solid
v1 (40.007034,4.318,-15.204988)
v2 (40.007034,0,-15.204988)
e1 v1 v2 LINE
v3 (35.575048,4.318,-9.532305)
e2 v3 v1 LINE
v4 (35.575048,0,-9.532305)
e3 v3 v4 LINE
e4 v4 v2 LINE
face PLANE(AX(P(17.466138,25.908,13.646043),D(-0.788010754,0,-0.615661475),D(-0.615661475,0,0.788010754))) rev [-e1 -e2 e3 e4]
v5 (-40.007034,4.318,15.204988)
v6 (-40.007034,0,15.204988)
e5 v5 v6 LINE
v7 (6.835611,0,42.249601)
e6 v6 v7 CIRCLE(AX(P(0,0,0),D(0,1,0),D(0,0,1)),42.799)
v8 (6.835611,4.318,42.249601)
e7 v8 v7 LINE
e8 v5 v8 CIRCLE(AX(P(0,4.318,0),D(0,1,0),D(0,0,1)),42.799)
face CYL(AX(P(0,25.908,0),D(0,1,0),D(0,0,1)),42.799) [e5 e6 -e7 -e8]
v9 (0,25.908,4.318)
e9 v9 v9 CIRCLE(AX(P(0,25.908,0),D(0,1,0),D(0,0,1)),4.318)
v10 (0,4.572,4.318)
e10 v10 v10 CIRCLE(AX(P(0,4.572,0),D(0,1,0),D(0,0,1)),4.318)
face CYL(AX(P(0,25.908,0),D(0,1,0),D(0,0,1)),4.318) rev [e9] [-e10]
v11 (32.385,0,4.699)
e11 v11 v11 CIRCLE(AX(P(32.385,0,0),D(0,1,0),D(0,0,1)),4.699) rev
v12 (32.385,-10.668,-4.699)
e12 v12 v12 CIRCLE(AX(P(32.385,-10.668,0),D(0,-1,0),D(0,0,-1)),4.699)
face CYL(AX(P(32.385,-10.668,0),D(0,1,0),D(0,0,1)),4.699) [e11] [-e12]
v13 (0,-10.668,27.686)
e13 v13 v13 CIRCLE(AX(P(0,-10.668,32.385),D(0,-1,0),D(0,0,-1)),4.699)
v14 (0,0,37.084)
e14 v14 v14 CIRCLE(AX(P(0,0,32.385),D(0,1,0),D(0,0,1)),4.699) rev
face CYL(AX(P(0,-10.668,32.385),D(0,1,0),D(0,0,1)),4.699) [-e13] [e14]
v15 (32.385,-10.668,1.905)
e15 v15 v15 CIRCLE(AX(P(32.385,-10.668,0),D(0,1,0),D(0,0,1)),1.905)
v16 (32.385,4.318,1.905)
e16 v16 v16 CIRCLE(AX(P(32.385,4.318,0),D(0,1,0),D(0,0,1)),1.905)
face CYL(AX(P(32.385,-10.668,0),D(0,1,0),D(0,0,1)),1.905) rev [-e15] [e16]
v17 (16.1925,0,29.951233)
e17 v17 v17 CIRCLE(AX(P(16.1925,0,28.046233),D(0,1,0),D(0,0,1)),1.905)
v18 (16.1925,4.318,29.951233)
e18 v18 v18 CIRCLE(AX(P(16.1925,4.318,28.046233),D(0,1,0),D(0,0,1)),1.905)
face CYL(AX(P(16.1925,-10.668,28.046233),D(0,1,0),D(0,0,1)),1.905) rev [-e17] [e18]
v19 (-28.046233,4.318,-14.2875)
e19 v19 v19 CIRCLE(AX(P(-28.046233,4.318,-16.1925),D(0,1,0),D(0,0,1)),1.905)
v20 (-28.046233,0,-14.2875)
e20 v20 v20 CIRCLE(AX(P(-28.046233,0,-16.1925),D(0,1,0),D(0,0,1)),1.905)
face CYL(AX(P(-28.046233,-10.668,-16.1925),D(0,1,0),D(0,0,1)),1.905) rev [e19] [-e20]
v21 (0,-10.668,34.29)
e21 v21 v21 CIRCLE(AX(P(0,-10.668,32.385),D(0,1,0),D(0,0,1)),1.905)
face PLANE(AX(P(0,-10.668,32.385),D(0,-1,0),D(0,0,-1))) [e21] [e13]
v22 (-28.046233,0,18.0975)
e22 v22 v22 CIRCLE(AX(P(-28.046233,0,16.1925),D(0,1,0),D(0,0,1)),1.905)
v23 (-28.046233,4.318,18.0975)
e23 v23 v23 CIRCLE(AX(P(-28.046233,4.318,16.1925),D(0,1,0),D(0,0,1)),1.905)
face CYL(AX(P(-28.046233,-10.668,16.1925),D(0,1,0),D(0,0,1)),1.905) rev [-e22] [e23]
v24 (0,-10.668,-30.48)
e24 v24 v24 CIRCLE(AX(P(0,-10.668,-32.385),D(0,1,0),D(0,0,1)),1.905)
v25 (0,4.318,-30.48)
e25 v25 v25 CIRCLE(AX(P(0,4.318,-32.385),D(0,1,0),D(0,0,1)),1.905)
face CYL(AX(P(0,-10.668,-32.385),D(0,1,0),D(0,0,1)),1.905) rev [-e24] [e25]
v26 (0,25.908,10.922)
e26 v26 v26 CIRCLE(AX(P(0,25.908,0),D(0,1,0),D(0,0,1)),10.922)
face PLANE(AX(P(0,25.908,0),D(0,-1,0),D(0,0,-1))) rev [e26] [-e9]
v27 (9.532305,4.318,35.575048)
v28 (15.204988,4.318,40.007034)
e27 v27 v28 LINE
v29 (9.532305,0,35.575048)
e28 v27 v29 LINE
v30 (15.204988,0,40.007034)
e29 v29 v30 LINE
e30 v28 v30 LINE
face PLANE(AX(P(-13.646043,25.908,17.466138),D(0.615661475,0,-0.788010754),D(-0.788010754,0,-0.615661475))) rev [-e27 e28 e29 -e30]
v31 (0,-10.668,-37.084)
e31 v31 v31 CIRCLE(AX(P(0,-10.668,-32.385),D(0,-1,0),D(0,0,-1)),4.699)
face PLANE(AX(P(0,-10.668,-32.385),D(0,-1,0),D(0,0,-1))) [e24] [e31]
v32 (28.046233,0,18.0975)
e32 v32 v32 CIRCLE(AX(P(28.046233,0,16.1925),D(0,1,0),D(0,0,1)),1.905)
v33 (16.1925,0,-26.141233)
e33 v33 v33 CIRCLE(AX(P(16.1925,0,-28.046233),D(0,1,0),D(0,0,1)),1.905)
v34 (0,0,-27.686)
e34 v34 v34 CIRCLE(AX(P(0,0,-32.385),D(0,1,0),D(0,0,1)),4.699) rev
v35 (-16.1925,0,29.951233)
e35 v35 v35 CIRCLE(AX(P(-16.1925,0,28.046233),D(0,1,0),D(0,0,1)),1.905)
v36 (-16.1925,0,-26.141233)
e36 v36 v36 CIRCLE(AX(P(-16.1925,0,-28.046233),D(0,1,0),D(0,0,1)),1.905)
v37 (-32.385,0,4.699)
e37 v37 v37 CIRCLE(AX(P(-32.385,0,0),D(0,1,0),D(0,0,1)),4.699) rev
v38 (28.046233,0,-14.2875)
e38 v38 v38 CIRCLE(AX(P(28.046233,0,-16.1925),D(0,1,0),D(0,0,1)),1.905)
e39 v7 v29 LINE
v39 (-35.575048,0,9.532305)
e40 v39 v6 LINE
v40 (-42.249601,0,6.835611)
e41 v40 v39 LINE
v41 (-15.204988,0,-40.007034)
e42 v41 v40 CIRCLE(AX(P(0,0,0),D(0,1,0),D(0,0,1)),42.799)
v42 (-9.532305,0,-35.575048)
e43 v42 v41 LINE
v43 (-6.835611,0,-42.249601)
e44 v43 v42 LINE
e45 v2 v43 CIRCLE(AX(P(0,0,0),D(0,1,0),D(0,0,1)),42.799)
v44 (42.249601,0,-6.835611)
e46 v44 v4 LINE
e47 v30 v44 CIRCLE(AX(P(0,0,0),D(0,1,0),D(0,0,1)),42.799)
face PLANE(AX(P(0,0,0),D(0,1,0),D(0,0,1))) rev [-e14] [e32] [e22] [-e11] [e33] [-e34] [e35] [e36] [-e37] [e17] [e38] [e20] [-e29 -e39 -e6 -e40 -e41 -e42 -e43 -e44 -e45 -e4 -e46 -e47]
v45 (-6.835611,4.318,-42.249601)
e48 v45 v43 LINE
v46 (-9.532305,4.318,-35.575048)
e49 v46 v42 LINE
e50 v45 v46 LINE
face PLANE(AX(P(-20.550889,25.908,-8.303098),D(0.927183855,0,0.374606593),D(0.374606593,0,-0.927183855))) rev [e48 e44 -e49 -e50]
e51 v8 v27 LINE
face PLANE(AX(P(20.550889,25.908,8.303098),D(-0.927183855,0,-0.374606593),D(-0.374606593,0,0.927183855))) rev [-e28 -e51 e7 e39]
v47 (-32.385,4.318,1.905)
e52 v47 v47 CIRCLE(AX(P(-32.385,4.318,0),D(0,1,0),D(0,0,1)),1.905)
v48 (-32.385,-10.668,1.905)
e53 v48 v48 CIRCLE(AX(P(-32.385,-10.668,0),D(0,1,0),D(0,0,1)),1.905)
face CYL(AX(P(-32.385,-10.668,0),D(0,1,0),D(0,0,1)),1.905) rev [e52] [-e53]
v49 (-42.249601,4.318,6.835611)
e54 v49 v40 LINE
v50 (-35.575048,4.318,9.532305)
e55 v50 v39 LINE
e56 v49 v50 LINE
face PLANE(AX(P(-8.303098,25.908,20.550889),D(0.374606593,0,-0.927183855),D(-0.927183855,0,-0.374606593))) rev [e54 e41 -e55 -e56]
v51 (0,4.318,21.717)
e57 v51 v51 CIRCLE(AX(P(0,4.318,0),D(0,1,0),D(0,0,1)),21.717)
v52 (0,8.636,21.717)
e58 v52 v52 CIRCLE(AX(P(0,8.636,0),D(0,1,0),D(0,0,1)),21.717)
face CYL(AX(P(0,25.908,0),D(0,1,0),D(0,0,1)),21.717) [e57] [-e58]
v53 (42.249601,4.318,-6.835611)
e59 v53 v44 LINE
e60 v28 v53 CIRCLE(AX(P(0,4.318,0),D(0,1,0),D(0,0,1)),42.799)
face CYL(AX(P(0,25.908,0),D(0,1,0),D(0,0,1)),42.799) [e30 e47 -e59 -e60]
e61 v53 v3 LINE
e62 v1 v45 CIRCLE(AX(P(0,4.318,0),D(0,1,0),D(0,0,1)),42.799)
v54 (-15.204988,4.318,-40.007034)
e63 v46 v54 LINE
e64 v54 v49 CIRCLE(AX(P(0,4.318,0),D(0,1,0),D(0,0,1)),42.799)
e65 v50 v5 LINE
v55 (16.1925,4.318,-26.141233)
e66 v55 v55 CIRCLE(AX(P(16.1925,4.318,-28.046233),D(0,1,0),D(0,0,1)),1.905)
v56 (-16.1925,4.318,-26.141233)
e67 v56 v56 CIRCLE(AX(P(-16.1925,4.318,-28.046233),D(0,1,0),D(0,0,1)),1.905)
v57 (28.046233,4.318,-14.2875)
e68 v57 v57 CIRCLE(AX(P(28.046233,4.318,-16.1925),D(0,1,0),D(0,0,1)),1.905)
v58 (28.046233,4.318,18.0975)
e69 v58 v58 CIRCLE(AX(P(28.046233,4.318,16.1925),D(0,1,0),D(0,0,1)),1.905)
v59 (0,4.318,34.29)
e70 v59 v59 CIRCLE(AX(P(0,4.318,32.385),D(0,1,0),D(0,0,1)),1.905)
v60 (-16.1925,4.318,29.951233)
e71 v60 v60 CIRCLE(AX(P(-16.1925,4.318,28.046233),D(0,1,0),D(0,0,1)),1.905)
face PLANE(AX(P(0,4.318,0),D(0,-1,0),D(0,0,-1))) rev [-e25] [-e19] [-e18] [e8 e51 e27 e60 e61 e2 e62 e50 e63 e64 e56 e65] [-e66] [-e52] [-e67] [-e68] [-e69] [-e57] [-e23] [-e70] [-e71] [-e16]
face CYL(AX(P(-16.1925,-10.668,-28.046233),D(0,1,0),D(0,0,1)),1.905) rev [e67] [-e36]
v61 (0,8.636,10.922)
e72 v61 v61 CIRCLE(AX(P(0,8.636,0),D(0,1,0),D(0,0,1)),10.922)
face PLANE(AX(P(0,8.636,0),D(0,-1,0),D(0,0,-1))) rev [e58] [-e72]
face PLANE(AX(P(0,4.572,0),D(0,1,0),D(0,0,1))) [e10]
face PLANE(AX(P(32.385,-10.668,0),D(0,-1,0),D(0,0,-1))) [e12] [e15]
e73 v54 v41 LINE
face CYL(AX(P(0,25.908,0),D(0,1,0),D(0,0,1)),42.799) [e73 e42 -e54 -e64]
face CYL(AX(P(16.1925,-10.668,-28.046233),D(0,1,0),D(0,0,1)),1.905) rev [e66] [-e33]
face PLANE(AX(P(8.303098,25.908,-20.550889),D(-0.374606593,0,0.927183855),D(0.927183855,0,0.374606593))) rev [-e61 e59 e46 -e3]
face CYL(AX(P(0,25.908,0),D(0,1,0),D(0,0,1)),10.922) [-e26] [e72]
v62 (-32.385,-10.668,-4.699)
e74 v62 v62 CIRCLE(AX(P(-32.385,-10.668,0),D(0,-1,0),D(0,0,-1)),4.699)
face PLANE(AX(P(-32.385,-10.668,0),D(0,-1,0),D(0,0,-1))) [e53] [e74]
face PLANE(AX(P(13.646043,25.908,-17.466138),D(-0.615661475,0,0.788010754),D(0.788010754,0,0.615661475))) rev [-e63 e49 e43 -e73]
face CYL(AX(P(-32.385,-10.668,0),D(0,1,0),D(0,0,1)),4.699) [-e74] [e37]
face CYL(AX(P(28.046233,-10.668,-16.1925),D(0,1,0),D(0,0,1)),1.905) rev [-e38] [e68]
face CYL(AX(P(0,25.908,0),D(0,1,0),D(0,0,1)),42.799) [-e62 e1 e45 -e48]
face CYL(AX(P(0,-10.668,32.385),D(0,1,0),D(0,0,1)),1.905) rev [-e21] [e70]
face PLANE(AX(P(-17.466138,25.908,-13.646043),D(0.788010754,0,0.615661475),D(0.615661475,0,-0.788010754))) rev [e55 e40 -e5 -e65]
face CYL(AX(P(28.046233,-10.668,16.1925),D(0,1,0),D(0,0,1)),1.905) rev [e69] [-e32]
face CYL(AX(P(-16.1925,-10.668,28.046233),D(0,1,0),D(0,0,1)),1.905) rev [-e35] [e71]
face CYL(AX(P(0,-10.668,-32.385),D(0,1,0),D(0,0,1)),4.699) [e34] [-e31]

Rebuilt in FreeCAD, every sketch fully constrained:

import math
import FreeCAD as App
import Part
import Sketcher

V = App.Vector
Q = App.Units.Quantity

doc = App.newDocument("Part")
params = doc.addObject("Spreadsheet::Sheet", "Params")
for row, (alias, value) in enumerate([
    ("sketch1_width", "0.17 in"),
    ("sketch1_width2", "0.26 in"),
    ("sketch1_width3", "0.83 in"),
    ("sketch1_height", "0.18 in"),
    ("sketch1_height2", "0.84 in"),
    ("revolution_angle", "360 deg"),
    ("sketch2_diameter", "0.37 in"),
    ("pad1_length", "0.42 in"),
    ("sketch3_diameter", "0.15 in"),
    ("sketch4_radius", "1.685 in"),
], start=1):
    params.set(f"A{row}", alias)
    params.set(f"B{row}", "=" + value)
    params.setAlias(f"B{row}", alias)

body = doc.addObject("PartDesign::Body", "Body")

sketch1 = doc.addObject("Sketcher::SketchObject", "Sketch")
body.addObject(sketch1)
sketch1.AttachmentSupport = (doc.XY_Plane, [""])
sketch1.MapMode = "FlatFace"
sketch1.addGeometry(Part.LineSegment(V(-42.8, 0, 0), V(0, 0, 0)), False)
sketch1.addGeometry(Part.LineSegment(V(0, 0, 0), V(0, 4.6, 0)), False)
sketch1.addGeometry(Part.LineSegment(V(0, 4.6, 0), V(-4.3, 4.6, 0)), False)
sketch1.addGeometry(Part.LineSegment(V(-4.3, 4.6, 0), V(-4.3, 25.9, 0)), False)
sketch1.addGeometry(Part.LineSegment(V(-4.3, 25.9, 0), V(-10.9, 25.9, 0)), False)
sketch1.addGeometry(Part.LineSegment(V(-10.9, 25.9, 0), V(-10.9, 8.6, 0)), False)
sketch1.addGeometry(Part.LineSegment(V(-10.9, 8.6, 0), V(-21.7, 8.6, 0)), False)
sketch1.addGeometry(Part.LineSegment(V(-21.7, 8.6, 0), V(-21.7, 4.3, 0)), False)
sketch1.addGeometry(Part.LineSegment(V(-21.7, 4.3, 0), V(-42.8, 4.3, 0)), False)
sketch1.addGeometry(Part.LineSegment(V(-42.8, 4.3, 0), V(-42.8, 0, 0)), False)
sketch1.addConstraint(Sketcher.Constraint("Coincident", 0, 2, 1, 1))
sketch1.addConstraint(Sketcher.Constraint("Coincident", 1, 2, 2, 1))
sketch1.addConstraint(Sketcher.Constraint("Coincident", 2, 2, 3, 1))
sketch1.addConstraint(Sketcher.Constraint("Coincident", 3, 2, 4, 1))
sketch1.addConstraint(Sketcher.Constraint("Coincident", 4, 2, 5, 1))
sketch1.addConstraint(Sketcher.Constraint("Coincident", 5, 2, 6, 1))
sketch1.addConstraint(Sketcher.Constraint("Coincident", 6, 2, 7, 1))
sketch1.addConstraint(Sketcher.Constraint("Coincident", 7, 2, 8, 1))
sketch1.addConstraint(Sketcher.Constraint("Coincident", 8, 2, 9, 1))
sketch1.addConstraint(Sketcher.Constraint("Coincident", 9, 2, 0, 1))
sketch1.addConstraint(Sketcher.Constraint("Horizontal", 0))
sketch1.addConstraint(Sketcher.Constraint("Vertical", 1))
sketch1.addConstraint(Sketcher.Constraint("Horizontal", 2))
sketch1.addConstraint(Sketcher.Constraint("Vertical", 3))
sketch1.addConstraint(Sketcher.Constraint("Horizontal", 4))
sketch1.addConstraint(Sketcher.Constraint("Vertical", 5))
sketch1.addConstraint(Sketcher.Constraint("Horizontal", 6))
sketch1.addConstraint(Sketcher.Constraint("Vertical", 7))
sketch1.addConstraint(Sketcher.Constraint("Horizontal", 8))
sketch1.addConstraint(Sketcher.Constraint("Vertical", 9))
sketch1.addConstraint(Sketcher.Constraint("Coincident", 0, 2, -1, 1))
sketch1.addConstraint(Sketcher.Constraint("Equal", 2, 7))
sketch1.addConstraint(Sketcher.Constraint("Equal", 7, 9))
sketch1.addConstraint(Sketcher.Constraint("DistanceX", 2, 2, 2, 1, Q("0.17 in")))
sketch1.addConstraint(Sketcher.Constraint("DistanceX", 4, 2, 4, 1, Q("0.26 in")))
sketch1.addConstraint(Sketcher.Constraint("DistanceX", 8, 2, 8, 1, Q("0.83 in")))
sketch1.addConstraint(Sketcher.Constraint("DistanceY", 1, 1, 1, 2, Q("0.18 in")))
sketch1.addConstraint(Sketcher.Constraint("DistanceY", 3, 1, 3, 2, Q("0.84 in")))
sketch1.addConstraint(Sketcher.Constraint("DistanceX", 0, 1, 0, 2, Q("1.685 in")))
sketch1.setExpression("Constraints[23]", "Params.sketch1_width")
sketch1.setExpression("Constraints[24]", "Params.sketch1_width2")
sketch1.setExpression("Constraints[25]", "Params.sketch1_width3")
sketch1.setExpression("Constraints[26]", "Params.sketch1_height")
sketch1.setExpression("Constraints[27]", "Params.sketch1_height2")
revolution = doc.addObject("PartDesign::Revolution", "Revolution")
body.addObject(revolution)
revolution.Profile = sketch1
revolution.ReferenceAxis = (sketch1, ["V_Axis"])
revolution.setExpression("Angle", "Params.revolution_angle")

sketch2 = doc.addObject("Sketcher::SketchObject", "Sketch001")
body.addObject(sketch2)
sketch2.AttachmentSupport = (doc.XZ_Plane, [""])
sketch2.MapMode = "FlatFace"
sketch2.addGeometry(Part.Circle(V(0, 32.4, 0), V(0, 0, 1), 4.7), False)
sketch2.addGeometry(Part.Circle(V(32.4, 0, 0), V(0, 0, 1), 4.7), False)
sketch2.addGeometry(Part.Circle(V(0, -32.4, 0), V(0, 0, 1), 4.7), False)
sketch2.addGeometry(Part.Circle(V(-32.4, 0, 0), V(0, 0, 1), 4.7), False)
sketch2.addConstraint(Sketcher.Constraint("Equal", 0, 1))
sketch2.addConstraint(Sketcher.Constraint("Equal", 1, 2))
sketch2.addConstraint(Sketcher.Constraint("Equal", 2, 3))
sketch2.addConstraint(Sketcher.Constraint("Symmetric", 0, 3, 2, 3, -1, 1))
sketch2.addConstraint(Sketcher.Constraint("Symmetric", 1, 3, 3, 3, -1, 1))
sketch2.addConstraint(Sketcher.Constraint("PointOnObject", 0, 3, -2))
sketch2.addConstraint(Sketcher.Constraint("PointOnObject", 1, 3, -1))
sketch2.addConstraint(Sketcher.Constraint("Diameter", 0, Q("0.37 in")))
sketch2.addConstraint(Sketcher.Constraint("DistanceY", 2, 3, 0, 3, Q("2.55 in")))
sketch2.addConstraint(Sketcher.Constraint("DistanceX", 3, 3, 1, 3, Q("2.55 in")))
sketch2.setExpression("Constraints[7]", "Params.sketch2_diameter")
pad1 = doc.addObject("PartDesign::Pad", "Pad")
body.addObject(pad1)
pad1.Profile = sketch2
pad1.setExpression("Length", "Params.pad1_length")

sketch3 = doc.addObject("Sketcher::SketchObject", "Sketch002")
body.addObject(sketch3)
sketch3.AttachmentSupport = (doc.XZ_Plane, [""])
sketch3.MapMode = "FlatFace"
sketch3.AttachmentOffset = App.Placement(V(0, 0, -0.17 * 25.4), App.Rotation())
sketch3.addGeometry(Part.Circle(V(-32.4, 0, 0), V(0, 0, 1), 1.9), False)
sketch3.addGeometry(Part.Circle(V(-28, -16.2, 0), V(0, 0, 1), 1.9), False)
sketch3.addGeometry(Part.Circle(V(-16.2, -28, 0), V(0, 0, 1), 1.9), False)
sketch3.addGeometry(Part.Circle(V(0, -32.4, 0), V(0, 0, 1), 1.9), False)
sketch3.addGeometry(Part.Circle(V(16.2, -28, 0), V(0, 0, 1), 1.9), False)
sketch3.addGeometry(Part.Circle(V(28, -16.2, 0), V(0, 0, 1), 1.9), False)
sketch3.addGeometry(Part.Circle(V(32.4, 0, 0), V(0, 0, 1), 1.9), False)
sketch3.addGeometry(Part.Circle(V(28, 16.2, 0), V(0, 0, 1), 1.9), False)
sketch3.addGeometry(Part.Circle(V(16.2, 28, 0), V(0, 0, 1), 1.9), False)
sketch3.addGeometry(Part.Circle(V(0, 32.4, 0), V(0, 0, 1), 1.9), False)
sketch3.addGeometry(Part.Circle(V(-16.2, 28, 0), V(0, 0, 1), 1.9), False)
sketch3.addGeometry(Part.Circle(V(-28, 16.2, 0), V(0, 0, 1), 1.9), False)
sketch3.addConstraint(Sketcher.Constraint("Equal", 0, 1))
sketch3.addConstraint(Sketcher.Constraint("Equal", 1, 2))
sketch3.addConstraint(Sketcher.Constraint("Equal", 2, 3))
sketch3.addConstraint(Sketcher.Constraint("Equal", 3, 4))
sketch3.addConstraint(Sketcher.Constraint("Equal", 4, 5))
sketch3.addConstraint(Sketcher.Constraint("Equal", 5, 6))
sketch3.addConstraint(Sketcher.Constraint("Equal", 6, 7))
sketch3.addConstraint(Sketcher.Constraint("Equal", 7, 8))
sketch3.addConstraint(Sketcher.Constraint("Equal", 8, 9))
sketch3.addConstraint(Sketcher.Constraint("Equal", 9, 10))
sketch3.addConstraint(Sketcher.Constraint("Equal", 10, 11))
sketch3.addConstraint(Sketcher.Constraint("Symmetric", 0, 3, 6, 3, -1, 1))
sketch3.addConstraint(Sketcher.Constraint("Symmetric", 1, 3, 7, 3, -1, 1))
sketch3.addConstraint(Sketcher.Constraint("Symmetric", 2, 3, 8, 3, -1, 1))
sketch3.addConstraint(Sketcher.Constraint("Symmetric", 3, 3, 9, 3, -1, 1))
sketch3.addConstraint(Sketcher.Constraint("Symmetric", 4, 3, 10, 3, -1, 1))
sketch3.addConstraint(Sketcher.Constraint("Symmetric", 5, 3, 11, 3, -1, 1))
sketch3.addConstraint(Sketcher.Constraint("Symmetric", 2, 3, 4, 3, -2))
sketch3.addConstraint(Sketcher.Constraint("Symmetric", 1, 3, 5, 3, -2))
sketch3.addConstraint(Sketcher.Constraint("PointOnObject", 0, 3, -1))
sketch3.addConstraint(Sketcher.Constraint("PointOnObject", 3, 3, -2))
sketch3.addConstraint(Sketcher.Constraint("Diameter", 0, Q("0.15 in")))
sketch3.addConstraint(Sketcher.Constraint("DistanceX", 0, 3, -1, 1, Q("1.275 in")))
sketch3.addConstraint(Sketcher.Constraint("DistanceY", 3, 3, -1, 1, Q("1.275 in")))
sketch3.addConstraint(Sketcher.Constraint("DistanceX", 2, 3, 4, 3, Q("1.275 in")))
sketch3.addConstraint(Sketcher.Constraint("DistanceY", 5, 3, 7, 3, Q("1.275 in")))
sketch3.addConstraint(Sketcher.Constraint("DistanceX", 1, 3, -1, 1, 28.046233))
sketch3.addConstraint(Sketcher.Constraint("DistanceY", 2, 3, -1, 1, 28.046233))
sketch3.setExpression("Constraints[21]", "Params.sketch3_diameter")
pocket1 = doc.addObject("PartDesign::Pocket", "Pocket")
body.addObject(pocket1)
pocket1.Profile = sketch3
pocket1.Type = "ThroughAll"
pocket1.Reversed = True

sketch4 = doc.addObject("Sketcher::SketchObject", "Sketch003")
body.addObject(sketch4)
sketch4.AttachmentSupport = (doc.XZ_Plane, [""])
sketch4.MapMode = "FlatFace"
sketch4.addGeometry(Part.LineSegment(V(-36, 10, 0), V(-40, 15, 0)), False)
sketch4.addGeometry(Part.ArcOfCircle(Part.Circle(V(0, 0, 0), V(0, 0, 1), 43), math.radians(159.19), math.radians(170.81)), False)
sketch4.addGeometry(Part.LineSegment(V(-42, 7, 0), V(-36, 10, 0)), False)
sketch4.addGeometry(Part.ArcOfCircle(Part.Circle(V(0, 0, 0), V(0, 0, 1), 43), math.radians(69.19), math.radians(80.81)), False)
sketch4.addGeometry(Part.LineSegment(V(7, 42, 0), V(10, 36, 0)), False)
sketch4.addGeometry(Part.LineSegment(V(10, 36, 0), V(15, 40, 0)), False)
sketch4.addGeometry(Part.ArcOfCircle(Part.Circle(V(0, 0, 0), V(0, 0, 1), 43), math.radians(-20.81), math.radians(-9.19)), False)
sketch4.addGeometry(Part.LineSegment(V(42, -7, 0), V(36, -10, 0)), False)
sketch4.addGeometry(Part.LineSegment(V(36, -10, 0), V(40, -15, 0)), False)
sketch4.addGeometry(Part.LineSegment(V(-10, -36, 0), V(-15, -40, 0)), False)
sketch4.addGeometry(Part.ArcOfCircle(Part.Circle(V(0, 0, 0), V(0, 0, 1), 43), math.radians(-110.81), math.radians(-99.19)), False)
sketch4.addGeometry(Part.LineSegment(V(-7, -42, 0), V(-10, -36, 0)), False)
sketch4.addConstraint(Sketcher.Constraint("Coincident", 0, 2, 1, 1))
sketch4.addConstraint(Sketcher.Constraint("Coincident", 1, 2, 2, 1))
sketch4.addConstraint(Sketcher.Constraint("Coincident", 2, 2, 0, 1))
sketch4.addConstraint(Sketcher.Constraint("Coincident", 3, 2, 4, 1))
sketch4.addConstraint(Sketcher.Constraint("Coincident", 4, 2, 5, 1))
sketch4.addConstraint(Sketcher.Constraint("Coincident", 5, 2, 3, 1))
sketch4.addConstraint(Sketcher.Constraint("Coincident", 6, 2, 7, 1))
sketch4.addConstraint(Sketcher.Constraint("Coincident", 7, 2, 8, 1))
sketch4.addConstraint(Sketcher.Constraint("Coincident", 8, 2, 6, 1))
sketch4.addConstraint(Sketcher.Constraint("Coincident", 9, 2, 10, 1))
sketch4.addConstraint(Sketcher.Constraint("Coincident", 10, 2, 11, 1))
sketch4.addConstraint(Sketcher.Constraint("Coincident", 11, 2, 9, 1))
sketch4.addConstraint(Sketcher.Constraint("Coincident", 1, 3, -1, 1))
sketch4.addConstraint(Sketcher.Constraint("Coincident", 3, 3, -1, 1))
sketch4.addConstraint(Sketcher.Constraint("Coincident", 6, 3, -1, 1))
sketch4.addConstraint(Sketcher.Constraint("Coincident", 10, 3, -1, 1))
sketch4.addConstraint(Sketcher.Constraint("Equal", 1, 3))
sketch4.addConstraint(Sketcher.Constraint("Equal", 3, 6))
sketch4.addConstraint(Sketcher.Constraint("Equal", 6, 10))
sketch4.addConstraint(Sketcher.Constraint("Symmetric", 2, 2, 7, 2, -1, 1))
sketch4.addConstraint(Sketcher.Constraint("Symmetric", 4, 2, 11, 2, -1, 1))
sketch4.addConstraint(Sketcher.Constraint("Perpendicular", 2, 4))
sketch4.addConstraint(Sketcher.Constraint("Perpendicular", 0, 5))
sketch4.addConstraint(Sketcher.Constraint("Perpendicular", 4, 7))
sketch4.addConstraint(Sketcher.Constraint("Perpendicular", 5, 8))
sketch4.addConstraint(Sketcher.Constraint("Perpendicular", 8, 9))
sketch4.addConstraint(Sketcher.Constraint("Perpendicular", 7, 11))
sketch4.addConstraint(Sketcher.Constraint("Equal", 0, 2))
sketch4.addConstraint(Sketcher.Constraint("Equal", 2, 4))
sketch4.addConstraint(Sketcher.Constraint("Equal", 4, 5))
sketch4.addConstraint(Sketcher.Constraint("Angle", 0, Q("128 deg")))
sketch4.addConstraint(Sketcher.Constraint("Angle", 2, Q("22 deg")))
sketch4.addConstraint(Sketcher.Constraint("Radius", 1, Q("1.685 in")))
sketch4.addConstraint(Sketcher.Constraint("DistanceX", 1, 2, -1, 1, 42.249601))
sketch4.setExpression("Constraints[32]", "Params.sketch4_radius")
pocket2 = doc.addObject("PartDesign::Pocket", "Pocket001")
body.addObject(pocket2)
pocket2.Profile = sketch4
pocket2.Type = "ThroughAll"

doc.recompute()
